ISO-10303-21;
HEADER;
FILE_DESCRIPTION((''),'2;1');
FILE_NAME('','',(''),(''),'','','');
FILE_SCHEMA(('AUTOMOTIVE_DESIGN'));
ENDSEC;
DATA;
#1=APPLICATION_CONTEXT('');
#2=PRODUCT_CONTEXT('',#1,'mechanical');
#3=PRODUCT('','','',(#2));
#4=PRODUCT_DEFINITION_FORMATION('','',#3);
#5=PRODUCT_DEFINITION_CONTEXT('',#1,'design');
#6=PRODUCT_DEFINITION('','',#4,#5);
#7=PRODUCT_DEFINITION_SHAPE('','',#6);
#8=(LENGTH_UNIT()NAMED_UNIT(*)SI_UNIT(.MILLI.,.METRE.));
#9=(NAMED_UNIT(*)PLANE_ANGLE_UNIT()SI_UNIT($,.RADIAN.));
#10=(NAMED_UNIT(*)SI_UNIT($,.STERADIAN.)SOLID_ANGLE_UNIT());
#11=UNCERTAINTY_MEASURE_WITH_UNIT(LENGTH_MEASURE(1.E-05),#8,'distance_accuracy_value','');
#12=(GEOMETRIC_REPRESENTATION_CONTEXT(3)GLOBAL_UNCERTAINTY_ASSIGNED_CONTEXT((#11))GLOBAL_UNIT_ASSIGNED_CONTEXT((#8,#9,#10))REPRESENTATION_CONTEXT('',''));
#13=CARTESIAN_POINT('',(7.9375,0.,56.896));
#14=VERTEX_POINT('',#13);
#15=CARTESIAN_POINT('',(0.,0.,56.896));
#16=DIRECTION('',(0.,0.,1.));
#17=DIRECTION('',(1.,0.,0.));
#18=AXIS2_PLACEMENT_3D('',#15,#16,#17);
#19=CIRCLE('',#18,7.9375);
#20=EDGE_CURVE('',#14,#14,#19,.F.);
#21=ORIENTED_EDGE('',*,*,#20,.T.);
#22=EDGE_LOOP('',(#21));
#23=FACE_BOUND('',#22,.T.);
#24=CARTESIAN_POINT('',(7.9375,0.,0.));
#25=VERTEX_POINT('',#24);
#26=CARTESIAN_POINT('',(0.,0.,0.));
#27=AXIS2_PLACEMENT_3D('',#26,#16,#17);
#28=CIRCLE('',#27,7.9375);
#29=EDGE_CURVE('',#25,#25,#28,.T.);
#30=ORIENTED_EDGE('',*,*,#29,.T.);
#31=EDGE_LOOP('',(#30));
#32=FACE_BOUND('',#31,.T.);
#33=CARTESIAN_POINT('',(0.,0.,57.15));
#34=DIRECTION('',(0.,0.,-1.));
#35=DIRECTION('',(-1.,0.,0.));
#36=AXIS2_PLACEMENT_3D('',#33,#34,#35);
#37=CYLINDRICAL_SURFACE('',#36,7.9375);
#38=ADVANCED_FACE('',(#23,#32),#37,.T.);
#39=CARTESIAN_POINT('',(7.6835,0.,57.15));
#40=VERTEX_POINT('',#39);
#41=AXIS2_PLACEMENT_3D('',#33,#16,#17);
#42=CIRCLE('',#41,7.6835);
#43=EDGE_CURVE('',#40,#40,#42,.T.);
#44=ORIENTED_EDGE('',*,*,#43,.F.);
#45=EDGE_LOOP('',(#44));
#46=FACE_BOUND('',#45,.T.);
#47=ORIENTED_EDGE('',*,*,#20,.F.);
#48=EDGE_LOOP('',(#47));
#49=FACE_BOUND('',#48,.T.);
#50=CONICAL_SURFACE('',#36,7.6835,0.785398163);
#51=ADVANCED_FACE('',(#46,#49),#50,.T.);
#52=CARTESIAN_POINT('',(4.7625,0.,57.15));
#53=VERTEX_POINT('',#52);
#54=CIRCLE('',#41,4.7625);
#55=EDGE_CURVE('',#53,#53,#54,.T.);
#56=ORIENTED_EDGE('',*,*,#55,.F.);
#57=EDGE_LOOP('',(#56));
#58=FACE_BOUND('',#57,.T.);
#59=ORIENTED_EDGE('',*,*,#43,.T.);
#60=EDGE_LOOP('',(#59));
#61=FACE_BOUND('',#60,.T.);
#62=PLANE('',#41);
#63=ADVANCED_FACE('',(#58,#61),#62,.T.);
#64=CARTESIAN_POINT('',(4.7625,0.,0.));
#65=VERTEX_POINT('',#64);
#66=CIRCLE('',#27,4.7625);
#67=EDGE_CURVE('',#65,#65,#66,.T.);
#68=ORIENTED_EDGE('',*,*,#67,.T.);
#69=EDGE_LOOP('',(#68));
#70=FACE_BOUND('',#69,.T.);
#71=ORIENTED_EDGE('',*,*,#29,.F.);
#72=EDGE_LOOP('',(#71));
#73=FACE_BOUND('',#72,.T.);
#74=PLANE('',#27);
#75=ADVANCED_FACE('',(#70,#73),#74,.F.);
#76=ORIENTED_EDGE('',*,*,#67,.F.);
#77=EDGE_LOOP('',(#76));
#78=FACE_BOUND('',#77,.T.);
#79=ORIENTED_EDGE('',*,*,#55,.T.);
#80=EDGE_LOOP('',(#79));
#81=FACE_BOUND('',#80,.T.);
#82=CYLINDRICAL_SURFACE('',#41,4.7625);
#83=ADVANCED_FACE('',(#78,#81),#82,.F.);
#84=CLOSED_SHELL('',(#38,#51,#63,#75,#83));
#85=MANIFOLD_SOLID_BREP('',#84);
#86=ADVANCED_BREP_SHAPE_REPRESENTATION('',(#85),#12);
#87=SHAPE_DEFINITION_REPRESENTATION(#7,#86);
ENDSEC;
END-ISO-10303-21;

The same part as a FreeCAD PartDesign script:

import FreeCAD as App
import Part
import Sketcher

V = App.Vector
Q = App.Units.Quantity


def edges_at(feature, points):
    """Names of the edges that pass closest to the given points."""
    edges = feature.Shape.Edges
    near = lambda p: min(range(len(edges)), key=lambda i: edges[i].distToShape(Part.Vertex(*p))[0])
    return sorted({f"Edge{near(p) + 1}" for p in points})

doc = App.newDocument("Part")
body = doc.addObject("PartDesign::Body", "Body")

# Sketch on XY plane
sketch1 = body.newObject("Sketcher::SketchObject", "Sketch")
sketch1.AttachmentSupport = (doc.getObject("XY_Plane"), [""])
sketch1.MapMode = "FlatFace"
sketch1.addGeometry(Part.Circle(V(0, 0, 0), V(0, 0, 1), 8), False)
sketch1.addConstraint([
    Sketcher.Constraint("Coincident", 0, 3, -1, 1),
    Sketcher.Constraint("Diameter", 0, Q("0.625 in")),
])
pad1 = body.newObject("PartDesign::Pad", "Pad")
pad1.Profile = sketch1
pad1.Length = Q("2.25 in")
doc.recompute()

chamfer = body.newObject("PartDesign::Chamfer", "Chamfer")
chamfer.Base = (pad1, edges_at(pad1, [(-7.938, 0, 57.15)]))
chamfer.Size = Q("0.01 in")

# Sketch on XY plane
sketch2 = body.newObject("Sketcher::SketchObject", "Sketch001")
sketch2.AttachmentSupport = (doc.getObject("XY_Plane"), [""])
sketch2.MapMode = "FlatFace"
sketch2.AttachmentOffset = App.Placement(V(0, 0, 2.25 * 25.4), App.Rotation())
sketch2.addGeometry(Part.Circle(V(0, 0, 0), V(0, 0, 1), 4.8), False)
sketch2.addConstraint([
    Sketcher.Constraint("Coincident", 0, 3, -1, 1),
    Sketcher.Constraint("Diameter", 0, Q("0.375 in")),
])
doc.recompute()
hole = body.newObject("PartDesign::Hole", "Hole")
hole.Profile = sketch2
hole.ThreadType = "None"
hole.Diameter = Q("0.375 in")
hole.DepthType = "ThroughAll"

doc.recompute()
